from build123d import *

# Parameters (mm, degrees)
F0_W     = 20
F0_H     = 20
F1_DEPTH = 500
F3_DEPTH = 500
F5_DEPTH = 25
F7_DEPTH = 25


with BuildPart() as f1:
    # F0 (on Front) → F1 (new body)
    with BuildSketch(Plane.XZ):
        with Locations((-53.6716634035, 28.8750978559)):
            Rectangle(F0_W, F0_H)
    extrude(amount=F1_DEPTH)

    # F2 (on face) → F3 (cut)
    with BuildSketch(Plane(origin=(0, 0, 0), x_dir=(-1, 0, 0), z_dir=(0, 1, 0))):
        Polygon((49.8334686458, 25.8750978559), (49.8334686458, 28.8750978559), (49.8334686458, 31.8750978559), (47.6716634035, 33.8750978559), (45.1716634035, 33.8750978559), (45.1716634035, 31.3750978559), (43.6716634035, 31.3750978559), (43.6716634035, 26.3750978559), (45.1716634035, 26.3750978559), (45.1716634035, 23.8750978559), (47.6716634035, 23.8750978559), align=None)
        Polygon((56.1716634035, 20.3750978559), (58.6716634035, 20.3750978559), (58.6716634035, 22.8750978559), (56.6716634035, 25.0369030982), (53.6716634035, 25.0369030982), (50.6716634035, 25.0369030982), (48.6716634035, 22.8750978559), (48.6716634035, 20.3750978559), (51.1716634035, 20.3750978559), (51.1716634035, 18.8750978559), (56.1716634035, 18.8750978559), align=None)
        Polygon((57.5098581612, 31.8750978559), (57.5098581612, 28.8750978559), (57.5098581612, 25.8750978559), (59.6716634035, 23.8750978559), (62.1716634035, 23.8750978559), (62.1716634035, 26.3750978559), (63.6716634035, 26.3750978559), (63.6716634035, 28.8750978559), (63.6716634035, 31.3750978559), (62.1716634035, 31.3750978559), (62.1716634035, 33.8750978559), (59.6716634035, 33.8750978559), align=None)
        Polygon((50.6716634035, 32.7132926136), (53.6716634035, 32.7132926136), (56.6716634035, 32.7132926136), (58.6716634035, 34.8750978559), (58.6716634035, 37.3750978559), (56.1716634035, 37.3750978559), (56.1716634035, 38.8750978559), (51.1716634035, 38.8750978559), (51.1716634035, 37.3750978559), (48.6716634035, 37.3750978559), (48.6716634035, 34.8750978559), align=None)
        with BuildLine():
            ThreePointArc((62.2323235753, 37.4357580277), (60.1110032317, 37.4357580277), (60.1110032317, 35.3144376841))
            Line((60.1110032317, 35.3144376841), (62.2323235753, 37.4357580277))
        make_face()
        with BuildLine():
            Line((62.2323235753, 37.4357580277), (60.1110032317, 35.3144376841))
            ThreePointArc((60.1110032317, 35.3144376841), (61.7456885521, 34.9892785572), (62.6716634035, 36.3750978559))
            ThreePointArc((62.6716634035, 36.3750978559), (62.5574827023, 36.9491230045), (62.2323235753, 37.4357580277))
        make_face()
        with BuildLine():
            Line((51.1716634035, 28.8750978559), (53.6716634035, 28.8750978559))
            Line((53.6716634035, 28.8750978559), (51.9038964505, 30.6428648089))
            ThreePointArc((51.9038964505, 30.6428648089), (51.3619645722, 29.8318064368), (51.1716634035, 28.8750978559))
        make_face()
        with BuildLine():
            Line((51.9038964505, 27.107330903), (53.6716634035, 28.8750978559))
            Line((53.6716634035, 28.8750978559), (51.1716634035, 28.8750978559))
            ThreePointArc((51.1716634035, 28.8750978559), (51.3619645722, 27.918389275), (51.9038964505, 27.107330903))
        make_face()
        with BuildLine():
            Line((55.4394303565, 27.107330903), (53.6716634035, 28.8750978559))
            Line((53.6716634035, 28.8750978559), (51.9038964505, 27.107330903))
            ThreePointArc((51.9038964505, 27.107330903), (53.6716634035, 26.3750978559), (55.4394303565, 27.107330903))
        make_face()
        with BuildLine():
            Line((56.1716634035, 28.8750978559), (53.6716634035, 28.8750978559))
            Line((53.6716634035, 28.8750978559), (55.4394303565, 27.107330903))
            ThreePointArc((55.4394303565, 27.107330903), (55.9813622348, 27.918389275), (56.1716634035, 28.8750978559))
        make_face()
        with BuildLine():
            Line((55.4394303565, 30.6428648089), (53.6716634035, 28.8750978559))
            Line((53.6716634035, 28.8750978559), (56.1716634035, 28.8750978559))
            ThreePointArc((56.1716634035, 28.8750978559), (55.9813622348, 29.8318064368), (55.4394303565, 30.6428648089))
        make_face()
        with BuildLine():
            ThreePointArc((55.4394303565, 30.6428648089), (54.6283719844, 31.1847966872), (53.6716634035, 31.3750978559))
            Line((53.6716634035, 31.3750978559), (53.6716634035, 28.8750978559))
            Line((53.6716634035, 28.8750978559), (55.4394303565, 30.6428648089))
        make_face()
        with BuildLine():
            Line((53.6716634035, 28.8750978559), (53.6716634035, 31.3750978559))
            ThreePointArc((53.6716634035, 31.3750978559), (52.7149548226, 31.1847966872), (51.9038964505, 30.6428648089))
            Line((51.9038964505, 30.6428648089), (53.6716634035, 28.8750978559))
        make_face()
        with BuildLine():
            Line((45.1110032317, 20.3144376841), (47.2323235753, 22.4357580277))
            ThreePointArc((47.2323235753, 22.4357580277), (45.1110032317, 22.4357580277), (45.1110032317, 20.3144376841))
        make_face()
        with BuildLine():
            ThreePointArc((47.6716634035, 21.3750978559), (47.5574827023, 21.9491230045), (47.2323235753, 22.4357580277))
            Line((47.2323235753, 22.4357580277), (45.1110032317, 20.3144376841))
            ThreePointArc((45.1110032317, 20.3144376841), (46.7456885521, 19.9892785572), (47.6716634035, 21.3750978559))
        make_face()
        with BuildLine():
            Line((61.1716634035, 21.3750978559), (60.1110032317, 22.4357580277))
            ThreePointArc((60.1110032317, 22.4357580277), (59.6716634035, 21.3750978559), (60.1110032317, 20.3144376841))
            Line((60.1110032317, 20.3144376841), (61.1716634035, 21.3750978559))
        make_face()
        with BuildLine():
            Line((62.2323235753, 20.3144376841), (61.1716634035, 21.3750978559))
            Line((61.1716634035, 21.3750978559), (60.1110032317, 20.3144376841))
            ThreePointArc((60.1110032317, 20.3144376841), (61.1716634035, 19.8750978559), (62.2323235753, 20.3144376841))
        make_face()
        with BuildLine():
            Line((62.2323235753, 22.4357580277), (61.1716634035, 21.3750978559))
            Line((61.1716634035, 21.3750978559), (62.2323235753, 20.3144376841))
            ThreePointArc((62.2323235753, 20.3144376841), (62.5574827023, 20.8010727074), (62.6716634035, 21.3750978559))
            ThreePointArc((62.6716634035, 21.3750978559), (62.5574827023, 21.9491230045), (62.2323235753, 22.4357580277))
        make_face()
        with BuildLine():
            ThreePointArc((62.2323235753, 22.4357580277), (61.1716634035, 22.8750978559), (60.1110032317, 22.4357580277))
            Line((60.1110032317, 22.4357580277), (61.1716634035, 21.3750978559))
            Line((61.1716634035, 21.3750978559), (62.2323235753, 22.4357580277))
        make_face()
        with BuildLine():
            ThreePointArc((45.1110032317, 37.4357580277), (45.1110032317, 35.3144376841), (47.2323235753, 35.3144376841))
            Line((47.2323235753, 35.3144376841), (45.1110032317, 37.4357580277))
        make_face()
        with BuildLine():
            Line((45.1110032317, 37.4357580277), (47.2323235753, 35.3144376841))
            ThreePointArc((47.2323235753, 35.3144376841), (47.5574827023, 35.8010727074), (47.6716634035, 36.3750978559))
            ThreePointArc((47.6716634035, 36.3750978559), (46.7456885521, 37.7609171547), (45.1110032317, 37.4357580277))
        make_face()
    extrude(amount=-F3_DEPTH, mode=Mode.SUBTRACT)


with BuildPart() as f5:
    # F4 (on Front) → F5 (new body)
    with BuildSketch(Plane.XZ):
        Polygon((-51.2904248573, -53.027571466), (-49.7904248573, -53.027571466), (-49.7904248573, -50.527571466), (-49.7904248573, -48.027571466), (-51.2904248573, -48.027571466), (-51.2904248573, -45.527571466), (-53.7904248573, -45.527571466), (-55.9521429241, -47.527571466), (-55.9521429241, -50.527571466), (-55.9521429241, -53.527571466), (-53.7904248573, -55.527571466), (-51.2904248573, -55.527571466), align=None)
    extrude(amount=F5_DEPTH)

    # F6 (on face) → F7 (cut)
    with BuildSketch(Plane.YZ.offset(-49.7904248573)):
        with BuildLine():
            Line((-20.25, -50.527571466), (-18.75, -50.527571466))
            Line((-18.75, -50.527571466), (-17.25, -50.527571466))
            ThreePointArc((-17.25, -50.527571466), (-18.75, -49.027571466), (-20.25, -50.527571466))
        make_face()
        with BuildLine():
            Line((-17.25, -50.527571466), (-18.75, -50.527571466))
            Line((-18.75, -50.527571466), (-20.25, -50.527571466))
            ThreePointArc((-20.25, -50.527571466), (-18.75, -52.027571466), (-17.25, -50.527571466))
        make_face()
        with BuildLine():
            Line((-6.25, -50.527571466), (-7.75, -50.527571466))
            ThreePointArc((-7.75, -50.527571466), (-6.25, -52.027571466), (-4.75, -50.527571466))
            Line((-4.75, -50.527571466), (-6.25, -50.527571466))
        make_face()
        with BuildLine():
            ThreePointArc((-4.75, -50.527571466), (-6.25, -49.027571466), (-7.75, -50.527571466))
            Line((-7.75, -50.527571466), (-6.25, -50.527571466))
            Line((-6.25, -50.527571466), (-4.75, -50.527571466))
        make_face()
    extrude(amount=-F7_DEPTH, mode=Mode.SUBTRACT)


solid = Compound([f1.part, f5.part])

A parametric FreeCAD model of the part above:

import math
import FreeCAD as App
import Part
import Sketcher

V = App.Vector
Q = App.Units.Quantity


def add_polygon(sketch, points):
    """Adds a closed chain of lines whose ends are joined by coincident constraints."""
    first, n = sketch.GeometryCount, len(points)
    for a, b in zip(points, points[1:] + points[:1]):
        sketch.addGeometry(Part.LineSegment(App.Vector(*a, 0), App.Vector(*b, 0)), False)
    for i in range(n):
        sketch.addConstraint(Sketcher.Constraint("Coincident", first + i, 2, first + (i + 1) % n, 1))

doc = App.newDocument("Part")
body = doc.addObject("PartDesign::Body", "Body")

# Sketch on XZ plane
sketch1 = body.newObject("Sketcher::SketchObject", "Sketch")
sketch1.AttachmentSupport = (doc.getObject("XZ_Plane"), [""])
sketch1.MapMode = "FlatFace"
add_polygon(sketch1, [(-64, 39), (-64, 19), (-44, 19), (-44, 39)])  # lines 0-3
sketch1.addConstraint([
    Sketcher.Constraint("Vertical", 0),
    Sketcher.Constraint("Horizontal", 1),
    Sketcher.Constraint("Vertical", 2),
    Sketcher.Constraint("Horizontal", 3),
    Sketcher.Constraint("Equal", 3, 0),
    Sketcher.Constraint("DistanceX", 1, 1, 1, 2, Q("20 mm")),
    Sketcher.Constraint("DistanceX", 0, 2, -1, 1, Q("63.671663 mm")),
    Sketcher.Constraint("DistanceY", -1, 1, 0, 2, Q("18.875098 mm")),
])
pad1 = body.newObject("PartDesign::Pad", "Pad")
pad1.Profile = sketch1
pad1.Length = 500

# Sketch on XZ plane
sketch2 = body.newObject("Sketcher::SketchObject", "Sketch001")
sketch2.AttachmentSupport = (doc.getObject("XZ_Plane"), [""])
sketch2.MapMode = "FlatFace"
add_polygon(sketch2, [(-49.8, 25.9), (-49.8, 31.9), (-47.7, 33.9), (-45.2, 33.9), (-45.2, 31.4), (-43.7, 31.4), (-43.7, 26.4), (-45.2, 26.4), (-45.2, 23.9), (-47.7, 23.9)])  # lines 0-9
add_polygon(sketch2, [(-56.2, 20.4), (-58.7, 20.4), (-58.7, 22.9), (-56.7, 25), (-50.7, 25), (-48.7, 22.9), (-48.7, 20.4), (-51.2, 20.4), (-51.2, 18.9), (-56.2, 18.9)])  # lines 10-19
add_polygon(sketch2, [(-57.5, 31.9), (-57.5, 25.9), (-59.7, 23.9), (-62.2, 23.9), (-62.2, 26.4), (-63.7, 26.4), (-63.7, 31.4), (-62.2, 31.4), (-62.2, 33.9), (-59.7, 33.9)])  # lines 20-29
add_polygon(sketch2, [(-50.7, 32.7), (-56.7, 32.7), (-58.7, 34.9), (-58.7, 37.4), (-56.2, 37.4), (-56.2, 38.9), (-51.2, 38.9), (-51.2, 37.4), (-48.7, 37.4), (-48.7, 34.9)])  # lines 30-39
sketch2.addGeometry(Part.ArcOfCircle(Part.Circle(V(-61.2, 36.4, 0), V(0, 0, 1), 1.5), math.radians(-45), math.radians(135)), False)  # 40
sketch2.addGeometry(Part.ArcOfCircle(Part.Circle(V(-61.2, 36.4, 0), V(0, 0, 1), 1.5), math.radians(180), math.radians(315)), False)  # 41
sketch2.addGeometry(Part.ArcOfCircle(Part.Circle(V(-61.2, 36.4, 0), V(0, 0, 1), 1.5), math.radians(135), math.radians(180)), False)  # 42
sketch2.addGeometry(Part.ArcOfCircle(Part.Circle(V(-53.7, 28.9, 0), V(0, 0, 1), 2.5), math.radians(0), math.radians(45)), False)  # 43
sketch2.addGeometry(Part.ArcOfCircle(Part.Circle(V(-53.7, 28.9, 0), V(0, 0, 1), 2.5), math.radians(-45), math.radians(0)), False)  # 44
sketch2.addGeometry(Part.ArcOfCircle(Part.Circle(V(-53.7, 28.9, 0), V(0, 0, 1), 2.5), math.radians(-135), math.radians(-45)), False)  # 45
sketch2.addGeometry(Part.ArcOfCircle(Part.Circle(V(-53.7, 28.9, 0), V(0, 0, 1), 2.5), math.radians(180), math.radians(225)), False)  # 46
sketch2.addGeometry(Part.ArcOfCircle(Part.Circle(V(-53.7, 28.9, 0), V(0, 0, 1), 2.5), math.radians(135), math.radians(180)), False)  # 47
sketch2.addGeometry(Part.ArcOfCircle(Part.Circle(V(-53.7, 28.9, 0), V(0, 0, 1), 2.5), math.radians(90), math.radians(135)), False)  # 48
sketch2.addGeometry(Part.ArcOfCircle(Part.Circle(V(-53.7, 28.9, 0), V(0, 0, 1), 2.5), math.radians(45), math.radians(90)), False)  # 49
sketch2.addGeometry(Part.ArcOfCircle(Part.Circle(V(-46.2, 21.4, 0), V(0, 0, 1), 1.5), math.radians(-45), math.radians(135)), False)  # 50
sketch2.addGeometry(Part.ArcOfCircle(Part.Circle(V(-46.2, 21.4, 0), V(0, 0, 1), 1.5), math.radians(180), math.radians(315)), False)  # 51
sketch2.addGeometry(Part.ArcOfCircle(Part.Circle(V(-46.2, 21.4, 0), V(0, 0, 1), 1.5), math.radians(135), math.radians(180)), False)  # 52
sketch2.addGeometry(Part.ArcOfCircle(Part.Circle(V(-61.2, 21.4, 0), V(0, 0, 1), 1.5), math.radians(-45), math.radians(45)), False)  # 53
sketch2.addGeometry(Part.ArcOfCircle(Part.Circle(V(-61.2, 21.4, 0), V(0, 0, 1), 1.5), math.radians(-135), math.radians(-45)), False)  # 54
sketch2.addGeometry(Part.ArcOfCircle(Part.Circle(V(-61.2, 21.4, 0), V(0, 0, 1), 1.5), math.radians(180), math.radians(225)), False)  # 55
sketch2.addGeometry(Part.ArcOfCircle(Part.Circle(V(-61.2, 21.4, 0), V(0, 0, 1), 1.5), math.radians(135), math.radians(180)), False)  # 56
sketch2.addGeometry(Part.ArcOfCircle(Part.Circle(V(-61.2, 21.4, 0), V(0, 0, 1), 1.5), math.radians(45), math.radians(135)), False)  # 57
sketch2.addGeometry(Part.ArcOfCircle(Part.Circle(V(-46.2, 36.4, 0), V(0, 0, 1), 1.5), math.radians(-135), math.radians(45)), False)  # 58
sketch2.addGeometry(Part.ArcOfCircle(Part.Circle(V(-46.2, 36.4, 0), V(0, 0, 1), 1.5), math.radians(180), math.radians(225)), False)  # 59
sketch2.addGeometry(Part.ArcOfCircle(Part.Circle(V(-46.2, 36.4, 0), V(0, 0, 1), 1.5), math.radians(45), math.radians(180)), False)  # 60
sketch2.addConstraint([
    Sketcher.Constraint("Tangent", 40, 1, 41, 2),
    Sketcher.Constraint("Tangent", 41, 1, 42, 2),
    Sketcher.Constraint("Tangent", 42, 1, 40, 2),
    Sketcher.Constraint("Tangent", 43, 1, 44, 2),
    Sketcher.Constraint("Tangent", 44, 1, 45, 2),
    Sketcher.Constraint("Tangent", 45, 1, 46, 2),
    Sketcher.Constraint("Tangent", 46, 1, 47, 2),
    Sketcher.Constraint("Tangent", 47, 1, 48, 2),
    Sketcher.Constraint("Tangent", 48, 1, 49, 2),
    Sketcher.Constraint("Tangent", 49, 1, 43, 2),
    Sketcher.Constraint("Tangent", 50, 1, 51, 2),
    Sketcher.Constraint("Tangent", 51, 1, 52, 2),
    Sketcher.Constraint("Tangent", 52, 1, 50, 2),
    Sketcher.Constraint("Tangent", 53, 1, 54, 2),
    Sketcher.Constraint("Tangent", 54, 1, 55, 2),
    Sketcher.Constraint("Tangent", 55, 1, 56, 2),
    Sketcher.Constraint("Tangent", 56, 1, 57, 2),
    Sketcher.Constraint("Tangent", 57, 1, 53, 2),
    Sketcher.Constraint("Tangent", 58, 1, 59, 2),
    Sketcher.Constraint("Tangent", 59, 1, 60, 2),
    Sketcher.Constraint("Tangent", 60, 1, 58, 2),
    Sketcher.Constraint("Vertical", 0),
    Sketcher.Constraint("Horizontal", 2),
    Sketcher.Constraint("Vertical", 3),
    Sketcher.Constraint("Horizontal", 4),
    Sketcher.Constraint("Vertical", 5),
    Sketcher.Constraint("Horizontal", 6),
    Sketcher.Constraint("Vertical", 7),
    Sketcher.Constraint("Horizontal", 8),
    Sketcher.Constraint("Horizontal", 10),
    Sketcher.Constraint("Vertical", 11),
    Sketcher.Constraint("Horizontal", 13),
    Sketcher.Constraint("Vertical", 15),
    Sketcher.Constraint("Horizontal", 16),
    Sketcher.Constraint("Vertical", 17),
    Sketcher.Constraint("Horizontal", 18),
    Sketcher.Constraint("Vertical", 19),
    Sketcher.Constraint("Vertical", 20),
    Sketcher.Constraint("Horizontal", 22),
    Sketcher.Constraint("Vertical", 23),
    Sketcher.Constraint("Horizontal", 24),
    Sketcher.Constraint("Vertical", 25),
    Sketcher.Constraint("Horizontal", 26),
    Sketcher.Constraint("Vertical", 27),
    Sketcher.Constraint("Horizontal", 28),
    Sketcher.Constraint("Horizontal", 30),
    Sketcher.Constraint("Vertical", 32),
    Sketcher.Constraint("Horizontal", 33),
    Sketcher.Constraint("Vertical", 34),
    Sketcher.Constraint("Horizontal", 35),
    Sketcher.Constraint("Vertical", 36),
    Sketcher.Constraint("Horizontal", 37),
    Sketcher.Constraint("Vertical", 38),
    Sketcher.Constraint("Coincident", 45, 3, 43, 3),
    Sketcher.Constraint("Coincident", 47, 3, 43, 3),
    Sketcher.Constraint("Coincident", 55, 3, 53, 3),
    Sketcher.Constraint("Equal", 42, 50),
    Sketcher.Constraint("Equal", 52, 53),
    Sketcher.Constraint("Equal", 57, 58),
    Sketcher.Constraint("Perpendicular", 9, 12),
    Sketcher.Constraint("Perpendicular", 1, 14),
    Sketcher.Constraint("Perpendicular", 14, 21),
    Sketcher.Constraint("Perpendicular", 12, 29),
    Sketcher.Constraint("Perpendicular", 21, 31),
    Sketcher.Constraint("Perpendicular", 29, 39),
    Sketcher.Constraint("Horizontal", 52, 3, 53, 3),
    Sketcher.Constraint("Horizontal", 42, 3, 58, 3),
    Sketcher.Constraint("Horizontal", 11, 2, 14, 2),
    Sketcher.Constraint("Horizontal", 10, 2, 15, 2),
    Sketcher.Constraint("Horizontal", 9, 2, 20, 2),
    Sketcher.Constraint("Horizontal", 8, 2, 21, 2),
    Sketcher.Constraint("Horizontal", 6, 2, 23, 2),
    Sketcher.Constraint("Horizontal", 4, 2, 25, 2),
    Sketcher.Constraint("Horizontal", 2, 2, 27, 2),
    Sketcher.Constraint("Horizontal", 0, 2, 29, 2),
    Sketcher.Constraint("Horizontal", 33, 2, 36, 2),
    Sketcher.Constraint("Horizontal", 31, 2, 38, 2),
    Sketcher.Constraint("Horizontal", 60, 3, 41, 1),
    Sketcher.Constraint("Horizontal", 49, 3, 43, 1),
    Sketcher.Constraint("Horizontal", 44, 1, 45, 1),
    Sketcher.Constraint("Horizontal", 43, 1, 46, 1),
    Sketcher.Constraint("Horizontal", 26, 2, 48, 1),
    Sketcher.Constraint("Horizontal", 47, 1, 49, 1),
    Sketcher.Constraint("Horizontal", 57, 3, 51, 1),
    Sketcher.Constraint("Horizontal", 50, 1, 53, 1),
    Sketcher.Constraint("Horizontal", 53, 1, 54, 1),
    Sketcher.Constraint("Horizontal", 51, 1, 55, 1),
    Sketcher.Constraint("Horizontal", 52, 1, 56, 1),
    Sketcher.Constraint("Horizontal", 56, 1, 57, 1),
    Sketcher.Constraint("Horizontal", 40, 1, 58, 1),
    Sketcher.Constraint("Horizontal", 41, 1, 59, 1),
    Sketcher.Constraint("Horizontal", 42, 1, 60, 1),
    Sketcher.Constraint("Vertical", 42, 3, 53, 3),
    Sketcher.Constraint("Vertical", 52, 3, 58, 3),
    Sketcher.Constraint("Vertical", 3, 2, 6, 2),
    Sketcher.Constraint("Vertical", 1, 2, 8, 2),
    Sketcher.Constraint("Vertical", 23, 2, 26, 2),
    Sketcher.Constraint("Vertical", 21, 2, 28, 2),
    Sketcher.Constraint("Vertical", 12, 2, 30, 2),
    Sketcher.Constraint("Vertical", 11, 2, 31, 2),
    Sketcher.Constraint("Vertical", 19, 2, 33, 2),
    Sketcher.Constraint("Vertical", 17, 2, 35, 2),
    Sketcher.Constraint("Vertical", 15, 2, 37, 2),
    Sketcher.Constraint("Vertical", 36, 2, 43, 1),
    Sketcher.Constraint("Vertical", 34, 2, 46, 1),
    Sketcher.Constraint("Vertical", 45, 1, 47, 1),
    Sketcher.Constraint("Vertical", 49, 3, 48, 1),
    Sketcher.Constraint("Vertical", 8, 2, 51, 1),
    Sketcher.Constraint("Vertical", 40, 1, 53, 1),
    Sketcher.Constraint("Vertical", 42, 1, 54, 1),
    Sketcher.Constraint("Vertical", 54, 1, 56, 1),
    Sketcher.Constraint("Equal", 8, 10),
    Sketcher.Constraint("Equal", 10, 16),
    Sketcher.Constraint("Equal", 16, 22),
    Sketcher.Constraint("Equal", 6, 24),
    Sketcher.Constraint("Equal", 30, 0),
    Sketcher.Constraint("Equal", 37, 3),
    Sketcher.Constraint("Equal", 35, 5),
    Sketcher.Constraint("Equal", 3, 7),
    Sketcher.Constraint("Equal", 7, 11),
    Sketcher.Constraint("Equal", 26, 17),
    Sketcher.Constraint("Equal", 27, 32),
    Sketcher.Constraint("Equal", 19, 34),
    Sketcher.Constraint("Radius", 40, Q("1.5 mm")),
    Sketcher.Constraint("Radius", 43, Q("2.5 mm")),
    Sketcher.Constraint("DistanceX", 13, 1, 13, 2, Q("6 mm")),
    Sketcher.Constraint("DistanceX", 2, 1, 2, 2, Q("2.5 mm")),
    Sketcher.Constraint("DistanceX", 4, 1, 4, 2, Q("1.5 mm")),
    Sketcher.Constraint("DistanceX", 0, 2, -1, 1, Q("49.833469 mm")),
    Sketcher.Constraint("DistanceX", 20, 2, -1, 1, Q("57.509858 mm")),
    Sketcher.Constraint("DistanceY", -1, 1, 42, 1, Q("37.435758 mm")),
    Sketcher.Constraint("DistanceY", -1, 1, 44, 1, Q("27.107331 mm")),
    Sketcher.Constraint("DistanceX", 45, 1, -1, 1, Q("55.43943 mm")),
    Sketcher.Constraint("DistanceY", -1, 1, 52, 1, Q("22.435758 mm")),
    Sketcher.Constraint("Distance", 1, Q("2.945064 mm")),
    Sketcher.Constraint("DistanceX", 40, 3, -1, 1, Q("61.171663 mm")),
    Sketcher.Constraint("DistanceY", -1, 1, 40, 3, Q("36.375098 mm")),
    Sketcher.Constraint("DistanceX", 43, 3, -1, 1, Q("53.671663 mm")),
    Sketcher.Constraint("DistanceY", -1, 1, 10, 2, Q("20.375098 mm")),
    Sketcher.Constraint("DistanceY", -1, 1, 30, 2, Q("32.713293 mm")),
])
pocket1 = body.newObject("PartDesign::Pocket", "Pocket")
pocket1.Profile = sketch2
pocket1.Length = 500
pocket1.Reversed = True
body2 = doc.addObject("PartDesign::Body", "Body001")

# Sketch on XZ plane
sketch3 = body2.newObject("Sketcher::SketchObject", "Sketch002")
sketch3.AttachmentSupport = (doc.getObject("XZ_Plane001"), [""])
sketch3.MapMode = "FlatFace"
add_polygon(sketch3, [(-51.3, -53), (-49.8, -53), (-49.8, -48), (-51.3, -48), (-51.3, -45.5), (-53.8, -45.5), (-56, -47.5), (-56, -53.5), (-53.8, -55.5), (-51.3, -55.5)])  # lines 0-9
sketch3.addConstraint([
    Sketcher.Constraint("Horizontal", 0),
    Sketcher.Constraint("Vertical", 1),
    Sketcher.Constraint("Horizontal", 2),
    Sketcher.Constraint("Vertical", 3),
    Sketcher.Constraint("Horizontal", 4),
    Sketcher.Constraint("Vertical", 6),
    Sketcher.Constraint("Horizontal", 8),
    Sketcher.Constraint("Vertical", 9),
    Sketcher.Constraint("Vertical", 4, 2, 7, 2),
    Sketcher.Constraint("Vertical", 3, 2, 8, 2),
    Sketcher.Constraint("Equal", 8, 3),
    Sketcher.Constraint("Equal", 3, 9),
    Sketcher.Constraint("Equal", 5, 7),
    Sketcher.Constraint("DistanceY", 1, 1, 1, 2, Q("5 mm")),
    Sketcher.Constraint("DistanceY", 6, 2, 6, 1, Q("6 mm")),
    Sketcher.Constraint("DistanceX", 0, 1, 0, 2, Q("1.5 mm")),
    Sketcher.Constraint("DistanceX", 4, 2, 4, 1, Q("2.5 mm")),
    Sketcher.Constraint("Distance", 5, Q("2.945 mm")),
    Sketcher.Constraint("DistanceY", 0, 2, -1, 1, Q("53.027571 mm")),
    Sketcher.Constraint("DistanceX", 0, 2, -1, 1, Q("49.790425 mm")),
])
pad2 = body2.newObject("PartDesign::Pad", "Pad001")
pad2.Profile = sketch3
pad2.Length = 25

# Sketch on YZ plane
sketch4 = body2.newObject("Sketcher::SketchObject", "Sketch003")
sketch4.AttachmentSupport = (doc.getObject("YZ_Plane001"), [""])
sketch4.MapMode = "FlatFace"
sketch4.AttachmentOffset = App.Placement(V(0, 0, -49.790425), App.Rotation())
sketch4.addGeometry([
    Part.Circle(V(-18.8, -50.5, 0), V(0, 0, 1), 1.5),
    Part.Circle(V(-6.2, -50.5, 0), V(0, 0, 1), 1.5),
], False)
sketch4.addConstraint([
    Sketcher.Constraint("Equal", 0, 1),
    Sketcher.Constraint("Horizontal", 0, 3, 1, 3),
    Sketcher.Constraint("Diameter", 0, Q("3 mm")),
    Sketcher.Constraint("DistanceX", 0, 3, 1, 3, Q("12.5 mm")),
    Sketcher.Constraint("DistanceX", 0, 3, -1, 1, Q("18.75 mm")),
    Sketcher.Constraint("DistanceY", 0, 3, -1, 1, Q("50.527571 mm")),
])
pocket2 = body2.newObject("PartDesign::Pocket", "Pocket001")
pocket2.Profile = sketch4
pocket2.Length = 25

doc.recompute()
